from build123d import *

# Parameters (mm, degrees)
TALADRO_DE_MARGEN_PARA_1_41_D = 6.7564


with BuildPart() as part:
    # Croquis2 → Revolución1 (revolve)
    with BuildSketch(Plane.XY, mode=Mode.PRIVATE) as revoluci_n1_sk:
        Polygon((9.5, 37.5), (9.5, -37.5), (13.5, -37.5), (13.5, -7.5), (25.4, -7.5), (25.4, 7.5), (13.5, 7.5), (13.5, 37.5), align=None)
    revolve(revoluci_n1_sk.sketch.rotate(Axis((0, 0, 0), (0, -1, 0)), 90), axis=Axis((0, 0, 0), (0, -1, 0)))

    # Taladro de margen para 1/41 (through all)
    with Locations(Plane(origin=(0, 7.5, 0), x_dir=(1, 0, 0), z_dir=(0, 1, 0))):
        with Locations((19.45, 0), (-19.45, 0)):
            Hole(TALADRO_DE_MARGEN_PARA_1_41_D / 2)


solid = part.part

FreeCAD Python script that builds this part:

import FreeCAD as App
import Part
import Sketcher


def add_polygon(sketch, points):
    """Adds a closed chain of lines whose ends are joined by coincident constraints."""
    first, n = sketch.GeometryCount, len(points)
    for a, b in zip(points, points[1:] + points[:1]):
        sketch.addGeometry(Part.LineSegment(App.Vector(*a, 0), App.Vector(*b, 0)), False)
    for i in range(n):
        sketch.addConstraint(Sketcher.Constraint("Coincident", first + i, 2, first + (i + 1) % n, 1))

doc = App.newDocument("Part")
body = doc.addObject("PartDesign::Body", "Body")

sketch1 = body.newObject("Sketcher::SketchObject", "Sketch")
sketch1.AttachmentSupport = (doc.getObject("XY_Plane"), [""])
sketch1.MapMode = "FlatFace"
add_polygon(sketch1, [(9.5, 37.5), (9.5, -37.5), (13.5, -37.5), (13.5, -7.5), (25.4, -7.5), (25.4, 7.5), (13.5, 7.5), (13.5, 37.5)])
sketch1.addConstraint([
    Sketcher.Constraint("Vertical", 0),
    Sketcher.Constraint("Horizontal", 1),
    Sketcher.Constraint("Vertical", 2),
    Sketcher.Constraint("Horizontal", 3),
    Sketcher.Constraint("Vertical", 4),
    Sketcher.Constraint("Horizontal", 5),
    Sketcher.Constraint("Vertical", 6),
    Sketcher.Constraint("Horizontal", 7),
    Sketcher.Constraint("Symmetric", 2, 2, 5, 2, -1),
    Sketcher.Constraint("Equal", 2, 6),
    Sketcher.Constraint("DistanceX", 1, 1, 1, 2, 4.0),
    Sketcher.Constraint("DistanceY", 0, 2, 0, 1, 75.0),
    Sketcher.Constraint("DistanceY", 2, 1, 2, 2, 30.0),
    Sketcher.Constraint("DistanceX", 3, 1, 3, 2, 11.9),
    Sketcher.Constraint("DistanceX", -1, 1, 0, 2, 9.5),
])
revolution = body.newObject("PartDesign::Revolution", "Revolution")
revolution.Profile = sketch1
revolution.ReferenceAxis = (sketch1, ["V_Axis"])
revolution.Angle = 360

sketch2 = body.newObject("Sketcher::SketchObject", "Sketch001")
sketch2.AttachmentSupport = (doc.getObject("XZ_Plane"), [""])
sketch2.MapMode = "FlatFace"
sketch2.AttachmentOffset = App.Placement(App.Vector(0, 0, -7.5), App.Rotation())
sketch2.addGeometry([
    Part.Circle(App.Vector(19.4, 0, 0), App.Vector(0, 0, 1), 3.4),
    Part.Circle(App.Vector(-19.4, 0, 0), App.Vector(0, 0, 1), 3.4),
], False)
sketch2.addConstraint([
    Sketcher.Constraint("Equal", 0, 1),
    Sketcher.Constraint("Symmetric", 0, 3, 1, 3, -1, 1),
    Sketcher.Constraint("PointOnObject", 0, 3, -1),
    Sketcher.Constraint("Diameter", 0, 6.7564),
    Sketcher.Constraint("DistanceX", 1, 3, 0, 3, 38.9),
])
doc.recompute()
hole = body.newObject("PartDesign::Hole", "Hole")
hole.Profile = sketch2
hole.ThreadType = "None"
hole.Diameter = 6.7564
hole.DepthType = "ThroughAll"
hole.Reversed = True

doc.recompute()
